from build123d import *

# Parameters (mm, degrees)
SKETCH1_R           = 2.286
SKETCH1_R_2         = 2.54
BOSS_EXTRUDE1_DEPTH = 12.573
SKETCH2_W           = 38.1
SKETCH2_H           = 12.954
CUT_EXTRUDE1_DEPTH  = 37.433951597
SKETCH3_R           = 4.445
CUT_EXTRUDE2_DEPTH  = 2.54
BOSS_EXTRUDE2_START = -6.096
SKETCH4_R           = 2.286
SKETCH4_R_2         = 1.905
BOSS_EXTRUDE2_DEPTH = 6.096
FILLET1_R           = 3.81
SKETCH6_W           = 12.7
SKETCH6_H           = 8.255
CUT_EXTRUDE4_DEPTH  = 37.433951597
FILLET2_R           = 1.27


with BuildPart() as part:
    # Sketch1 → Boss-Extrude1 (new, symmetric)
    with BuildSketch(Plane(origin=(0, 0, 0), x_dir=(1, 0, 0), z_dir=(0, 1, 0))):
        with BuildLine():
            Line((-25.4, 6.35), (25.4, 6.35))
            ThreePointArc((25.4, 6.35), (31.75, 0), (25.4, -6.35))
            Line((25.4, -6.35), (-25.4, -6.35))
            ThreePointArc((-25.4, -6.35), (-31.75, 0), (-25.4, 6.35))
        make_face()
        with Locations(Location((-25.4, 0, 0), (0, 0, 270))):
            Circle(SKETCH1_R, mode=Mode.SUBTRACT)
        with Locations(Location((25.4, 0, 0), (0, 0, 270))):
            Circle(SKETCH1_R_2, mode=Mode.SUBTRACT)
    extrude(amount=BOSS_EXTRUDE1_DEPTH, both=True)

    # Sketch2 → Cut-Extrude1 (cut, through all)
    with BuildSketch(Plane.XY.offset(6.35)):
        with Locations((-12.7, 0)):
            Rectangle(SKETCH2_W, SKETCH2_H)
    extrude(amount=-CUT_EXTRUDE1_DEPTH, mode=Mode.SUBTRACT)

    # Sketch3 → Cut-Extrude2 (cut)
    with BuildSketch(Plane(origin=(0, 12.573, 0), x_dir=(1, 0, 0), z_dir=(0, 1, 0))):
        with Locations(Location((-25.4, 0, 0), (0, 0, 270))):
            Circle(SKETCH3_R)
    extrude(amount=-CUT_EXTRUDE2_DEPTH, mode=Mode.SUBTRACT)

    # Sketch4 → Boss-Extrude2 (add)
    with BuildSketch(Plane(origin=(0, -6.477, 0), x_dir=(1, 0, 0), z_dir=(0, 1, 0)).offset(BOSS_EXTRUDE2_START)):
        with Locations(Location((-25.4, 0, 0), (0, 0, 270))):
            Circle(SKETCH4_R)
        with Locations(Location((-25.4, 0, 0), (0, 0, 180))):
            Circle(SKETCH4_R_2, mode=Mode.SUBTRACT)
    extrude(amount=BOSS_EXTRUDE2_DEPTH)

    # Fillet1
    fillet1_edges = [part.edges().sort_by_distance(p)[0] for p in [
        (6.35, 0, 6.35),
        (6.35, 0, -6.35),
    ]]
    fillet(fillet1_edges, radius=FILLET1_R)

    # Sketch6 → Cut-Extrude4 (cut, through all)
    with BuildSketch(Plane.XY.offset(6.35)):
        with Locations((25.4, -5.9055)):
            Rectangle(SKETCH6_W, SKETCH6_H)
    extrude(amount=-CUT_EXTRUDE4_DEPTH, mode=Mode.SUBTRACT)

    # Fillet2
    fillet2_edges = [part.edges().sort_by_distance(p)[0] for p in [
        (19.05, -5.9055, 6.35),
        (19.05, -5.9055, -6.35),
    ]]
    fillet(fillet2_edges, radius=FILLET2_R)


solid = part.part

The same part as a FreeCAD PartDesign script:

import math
import FreeCAD as App
import Part
import Sketcher
from FreeCAD import Vector
Q = App.Units.Quantity


def edges_at(feature, points):
    """Names of the edges that pass closest to the given points."""
    edges = feature.Shape.Edges
    near = lambda p: min(range(len(edges)), key=lambda i: edges[i].distToShape(Part.Vertex(*p))[0])
    return sorted({f"Edge{near(p) + 1}" for p in points})


def add_polygon(sketch, points):
    """Adds a closed chain of lines whose ends are joined by coincident constraints."""
    first, n = sketch.GeometryCount, len(points)
    for a, b in zip(points, points[1:] + points[:1]):
        sketch.addGeometry(Part.LineSegment(App.Vector(*a, 0), App.Vector(*b, 0)), False)
    for i in range(n):
        sketch.addConstraint(Sketcher.Constraint("Coincident", first + i, 2, first + (i + 1) % n, 1))

doc = App.newDocument("Part")
body = doc.addObject("PartDesign::Body", "Body")

# Sketch on XZ plane
sketch1 = body.newObject("Sketcher::SketchObject", "Sketch")
sketch1.AttachmentSupport = (doc.getObject("XZ_Plane"), [""])
sketch1.MapMode = "FlatFace"
sketch1.addGeometry(Part.LineSegment(Vector(25.4, -6.35, 0), Vector(-25.4, -6.35, 0)), False)
sketch1.addGeometry(Part.ArcOfCircle(Part.Circle(Vector(-25.4, 0, 0), Vector(0, 0, 1), 6.35), math.radians(90), math.radians(270)), False)
sketch1.addGeometry(Part.LineSegment(Vector(-25.4, 6.35, 0), Vector(25.4, 6.35, 0)), False)
sketch1.addGeometry(Part.ArcOfCircle(Part.Circle(Vector(25.4, 0, 0), Vector(0, 0, 1), 6.35), math.radians(-90), math.radians(90)), False)
sketch1.addGeometry(Part.Circle(Vector(25.4, 0, 0), Vector(0, 0, 1), 2.54), False)
sketch1.addGeometry(Part.Circle(Vector(-25.4, 0, 0), Vector(0, 0, 1), 2.286), False)
sketch1.addConstraint(Sketcher.Constraint("Tangent", 0, 2, 1, 2))
sketch1.addConstraint(Sketcher.Constraint("Tangent", 1, 1, 2, 1))
sketch1.addConstraint(Sketcher.Constraint("Tangent", 2, 2, 3, 2))
sketch1.addConstraint(Sketcher.Constraint("Tangent", 3, 1, 0, 1))
sketch1.addConstraint(Sketcher.Constraint("Horizontal", 0))
sketch1.addConstraint(Sketcher.Constraint("Horizontal", 2))
sketch1.addConstraint(Sketcher.Constraint("Coincident", 4, 3, 3, 3))
sketch1.addConstraint(Sketcher.Constraint("Coincident", 5, 3, 1, 3))
sketch1.addConstraint(Sketcher.Constraint("Symmetric", 1, 3, 3, 3, -1, 1))
sketch1.addConstraint(Sketcher.Constraint("Diameter", 4, Q("0.2 in")))
sketch1.addConstraint(Sketcher.Constraint("Diameter", 5, Q("0.18 in")))
sketch1.addConstraint(Sketcher.Constraint("DistanceX", 0, 2, 0, 1, Q("2 in")))
sketch1.addConstraint(Sketcher.Constraint("Radius", 1, Q("0.25 in")))
pad1 = body.newObject("PartDesign::Pad", "Pad")
pad1.Profile = sketch1
pad1.Length = Q("0.99 in")
pad1.Midplane = True

# Sketch on XY plane
sketch2 = body.newObject("Sketcher::SketchObject", "Sketch001")
sketch2.AttachmentSupport = (doc.getObject("XY_Plane"), [""])
sketch2.MapMode = "FlatFace"
sketch2.AttachmentOffset = App.Placement(Vector(0, 0, 0.25 * 25.4), App.Rotation())
add_polygon(sketch2, [(-31.75, 6.477), (-31.75, -6.477), (6.35, -6.477), (6.35, 6.477)])  # lines 0-3
sketch2.addConstraint(Sketcher.Constraint("Vertical", 0))
sketch2.addConstraint(Sketcher.Constraint("Horizontal", 1))
sketch2.addConstraint(Sketcher.Constraint("Vertical", 2))
sketch2.addConstraint(Sketcher.Constraint("Horizontal", 3))
sketch2.addConstraint(Sketcher.Constraint("DistanceX", 1, 1, 1, 2, Q("1.5 in")))
sketch2.addConstraint(Sketcher.Constraint("DistanceY", 0, 2, 0, 1, Q("0.51 in")))
sketch2.addConstraint(Sketcher.Constraint("DistanceX", 0, 2, -1, 1, Q("1.25 in")))
sketch2.addConstraint(Sketcher.Constraint("DistanceY", 0, 2, -1, 1, Q("0.255 in")))
pocket1 = body.newObject("PartDesign::Pocket", "Pocket")
pocket1.Profile = sketch2
pocket1.Type = "ThroughAll"

# Sketch on XZ plane
sketch3 = body.newObject("Sketcher::SketchObject", "Sketch002")
sketch3.AttachmentSupport = (doc.getObject("XZ_Plane"), [""])
sketch3.MapMode = "FlatFace"
sketch3.AttachmentOffset = App.Placement(Vector(0, 0, -0.495 * 25.4), App.Rotation())
sketch3.addGeometry(Part.Circle(Vector(-25.4, 0, 0), Vector(0, 0, 1), 4.445), False)
sketch3.addConstraint(Sketcher.Constraint("PointOnObject", 0, 3, -1))
sketch3.addConstraint(Sketcher.Constraint("Diameter", 0, Q("0.35 in")))
sketch3.addConstraint(Sketcher.Constraint("DistanceX", 0, 3, -1, 1, Q("1 in")))
pocket2 = body.newObject("PartDesign::Pocket", "Pocket001")
pocket2.Profile = sketch3
pocket2.Length = Q("0.1 in")
pocket2.Reversed = True

# Sketch on XZ plane
sketch4 = body.newObject("Sketcher::SketchObject", "Sketch003")
sketch4.AttachmentSupport = (doc.getObject("XZ_Plane"), [""])
sketch4.MapMode = "FlatFace"
sketch4.AttachmentOffset = App.Placement(Vector(0, 0, 0.495 * 25.4), App.Rotation())
sketch4.addGeometry(Part.Circle(Vector(-25.4, 0, 0), Vector(0, 0, 1), 2.286), False)
sketch4.addGeometry(Part.Circle(Vector(-25.4, 0, 0), Vector(0, 0, 1), 1.905), False)
sketch4.addConstraint(Sketcher.Constraint("Coincident", 1, 3, 0, 3))
sketch4.addConstraint(Sketcher.Constraint("PointOnObject", 0, 3, -1))
sketch4.addConstraint(Sketcher.Constraint("Diameter", 0, Q("0.18 in")))
sketch4.addConstraint(Sketcher.Constraint("Diameter", 1, Q("0.15 in")))
sketch4.addConstraint(Sketcher.Constraint("DistanceX", 0, 3, -1, 1, Q("1 in")))
pad2 = body.newObject("PartDesign::Pad", "Pad001")
pad2.Profile = sketch4
pad2.Length = Q("0.24 in")
pad2.Reversed = True
doc.recompute()

fillet = body.newObject("PartDesign::Fillet", "Fillet")
fillet.Base = (pad2, edges_at(pad2, [(6.35, 0, 6.35), (6.35, 0, -6.35)]))
fillet.Radius = Q("0.15 in")

# Sketch on XY plane
sketch5 = body.newObject("Sketcher::SketchObject", "Sketch004")
sketch5.AttachmentSupport = (doc.getObject("XY_Plane"), [""])
sketch5.MapMode = "FlatFace"
sketch5.AttachmentOffset = App.Placement(Vector(0, 0, 0.25 * 25.4), App.Rotation())
add_polygon(sketch5, [(19.05, -1.778), (19.05, -10.033), (31.75, -10.033), (31.75, -1.778)])  # lines 0-3
sketch5.addConstraint(Sketcher.Constraint("Vertical", 0))
sketch5.addConstraint(Sketcher.Constraint("Horizontal", 1))
sketch5.addConstraint(Sketcher.Constraint("Vertical", 2))
sketch5.addConstraint(Sketcher.Constraint("Horizontal", 3))
sketch5.addConstraint(Sketcher.Constraint("DistanceX", 1, 1, 1, 2, Q("0.5 in")))
sketch5.addConstraint(Sketcher.Constraint("DistanceY", 0, 2, 0, 1, Q("0.325 in")))
sketch5.addConstraint(Sketcher.Constraint("DistanceX", -1, 1, 0, 2, Q("0.75 in")))
sketch5.addConstraint(Sketcher.Constraint("DistanceY", 2, 2, -1, 1, Q("0.07 in")))
pocket3 = body.newObject("PartDesign::Pocket", "Pocket002")
pocket3.Profile = sketch5
pocket3.Type = "ThroughAll"
doc.recompute()

fillet2 = body.newObject("PartDesign::Fillet", "Fillet001")
fillet2.Base = (pocket3, edges_at(pocket3, [(19.05, -5.905, 6.35), (19.05, -5.905, -6.35)]))
fillet2.Radius = Q("0.05 in")

doc.recompute()
